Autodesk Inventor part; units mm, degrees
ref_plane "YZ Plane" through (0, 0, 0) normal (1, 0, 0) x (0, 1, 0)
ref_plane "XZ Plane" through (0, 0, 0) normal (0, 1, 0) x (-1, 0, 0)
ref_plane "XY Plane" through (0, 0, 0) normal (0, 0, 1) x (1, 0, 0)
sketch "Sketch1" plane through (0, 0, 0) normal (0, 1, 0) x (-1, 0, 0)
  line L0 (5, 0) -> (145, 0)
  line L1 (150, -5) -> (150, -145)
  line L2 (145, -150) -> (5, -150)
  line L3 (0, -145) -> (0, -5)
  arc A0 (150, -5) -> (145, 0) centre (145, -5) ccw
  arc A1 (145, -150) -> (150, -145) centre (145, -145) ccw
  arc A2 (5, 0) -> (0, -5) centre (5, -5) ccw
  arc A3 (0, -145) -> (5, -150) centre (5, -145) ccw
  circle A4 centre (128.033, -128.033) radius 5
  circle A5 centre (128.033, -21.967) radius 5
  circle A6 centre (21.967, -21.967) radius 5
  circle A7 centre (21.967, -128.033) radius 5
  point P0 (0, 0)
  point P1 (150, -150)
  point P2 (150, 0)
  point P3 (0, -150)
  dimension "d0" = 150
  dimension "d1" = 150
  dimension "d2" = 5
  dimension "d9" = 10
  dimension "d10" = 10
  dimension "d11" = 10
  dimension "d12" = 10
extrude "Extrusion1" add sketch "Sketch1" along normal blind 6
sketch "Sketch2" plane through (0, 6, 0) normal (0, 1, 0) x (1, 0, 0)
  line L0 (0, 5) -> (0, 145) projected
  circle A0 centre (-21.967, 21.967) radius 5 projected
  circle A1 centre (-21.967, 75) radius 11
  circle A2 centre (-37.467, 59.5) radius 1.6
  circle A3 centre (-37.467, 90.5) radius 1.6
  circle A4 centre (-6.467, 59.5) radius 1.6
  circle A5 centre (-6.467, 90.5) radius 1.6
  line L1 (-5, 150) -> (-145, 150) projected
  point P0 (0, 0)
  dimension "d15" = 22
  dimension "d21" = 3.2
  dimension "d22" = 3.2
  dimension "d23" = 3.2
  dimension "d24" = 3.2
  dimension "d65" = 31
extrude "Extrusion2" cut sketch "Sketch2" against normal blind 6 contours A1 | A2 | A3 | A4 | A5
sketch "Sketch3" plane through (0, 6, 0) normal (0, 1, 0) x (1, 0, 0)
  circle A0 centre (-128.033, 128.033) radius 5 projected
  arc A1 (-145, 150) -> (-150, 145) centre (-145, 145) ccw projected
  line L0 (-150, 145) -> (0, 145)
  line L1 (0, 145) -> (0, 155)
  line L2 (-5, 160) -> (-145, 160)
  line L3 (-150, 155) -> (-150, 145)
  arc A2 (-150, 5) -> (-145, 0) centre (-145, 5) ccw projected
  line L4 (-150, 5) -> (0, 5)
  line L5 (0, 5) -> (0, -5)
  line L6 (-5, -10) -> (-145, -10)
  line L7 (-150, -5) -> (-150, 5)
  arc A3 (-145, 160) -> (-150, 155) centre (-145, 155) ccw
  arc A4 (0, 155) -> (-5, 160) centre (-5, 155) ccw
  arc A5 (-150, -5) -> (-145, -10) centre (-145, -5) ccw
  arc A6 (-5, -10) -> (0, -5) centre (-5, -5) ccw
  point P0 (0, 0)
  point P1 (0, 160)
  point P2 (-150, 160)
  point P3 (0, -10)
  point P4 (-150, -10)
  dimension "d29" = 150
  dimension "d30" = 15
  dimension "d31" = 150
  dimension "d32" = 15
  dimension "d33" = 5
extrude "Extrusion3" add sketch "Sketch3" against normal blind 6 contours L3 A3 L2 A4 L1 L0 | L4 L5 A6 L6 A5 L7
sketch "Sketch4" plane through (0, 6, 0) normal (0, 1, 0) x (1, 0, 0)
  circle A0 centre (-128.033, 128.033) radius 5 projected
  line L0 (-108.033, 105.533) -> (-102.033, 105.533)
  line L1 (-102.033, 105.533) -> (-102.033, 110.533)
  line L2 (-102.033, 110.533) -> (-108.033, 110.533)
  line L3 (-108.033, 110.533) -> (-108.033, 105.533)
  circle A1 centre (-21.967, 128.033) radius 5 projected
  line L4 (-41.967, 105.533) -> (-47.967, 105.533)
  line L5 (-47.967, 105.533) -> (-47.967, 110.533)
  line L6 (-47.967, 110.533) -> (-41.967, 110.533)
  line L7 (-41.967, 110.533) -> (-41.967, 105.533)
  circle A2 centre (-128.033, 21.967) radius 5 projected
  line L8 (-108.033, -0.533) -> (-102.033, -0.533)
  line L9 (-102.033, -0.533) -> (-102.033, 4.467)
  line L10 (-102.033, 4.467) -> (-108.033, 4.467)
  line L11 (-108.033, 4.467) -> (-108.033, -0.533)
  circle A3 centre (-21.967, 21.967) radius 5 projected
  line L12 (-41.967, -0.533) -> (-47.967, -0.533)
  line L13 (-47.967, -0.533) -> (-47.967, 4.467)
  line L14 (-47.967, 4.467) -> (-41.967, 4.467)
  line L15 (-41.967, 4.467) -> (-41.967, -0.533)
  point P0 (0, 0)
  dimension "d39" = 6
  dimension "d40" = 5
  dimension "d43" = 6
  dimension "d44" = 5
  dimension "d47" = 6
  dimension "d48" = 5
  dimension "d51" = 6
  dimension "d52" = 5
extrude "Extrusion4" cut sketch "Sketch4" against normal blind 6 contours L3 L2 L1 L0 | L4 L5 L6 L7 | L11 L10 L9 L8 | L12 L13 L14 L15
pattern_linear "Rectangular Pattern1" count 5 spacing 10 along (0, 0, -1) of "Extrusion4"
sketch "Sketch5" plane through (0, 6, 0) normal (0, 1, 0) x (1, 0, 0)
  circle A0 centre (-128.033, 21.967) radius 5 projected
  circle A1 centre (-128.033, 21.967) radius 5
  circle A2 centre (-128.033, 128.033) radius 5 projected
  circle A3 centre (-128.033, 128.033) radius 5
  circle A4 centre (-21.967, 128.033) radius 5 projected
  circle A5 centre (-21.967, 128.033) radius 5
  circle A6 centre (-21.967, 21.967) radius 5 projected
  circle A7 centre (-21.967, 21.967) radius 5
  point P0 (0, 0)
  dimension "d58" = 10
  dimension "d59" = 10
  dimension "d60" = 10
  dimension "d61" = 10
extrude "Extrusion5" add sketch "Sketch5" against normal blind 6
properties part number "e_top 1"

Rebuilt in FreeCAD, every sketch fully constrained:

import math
import FreeCAD as App
import Part
import Sketcher
from FreeCAD import Vector
Q = App.Units.Quantity

doc = App.newDocument("Part")
body = doc.addObject("PartDesign::Body", "Body")

# Sketch on XZ plane
sketch1 = body.newObject("Sketcher::SketchObject", "Sketch")
sketch1.AttachmentSupport = (doc.getObject("XZ_Plane"), [""])
sketch1.MapMode = "FlatFace"
sketch1.addGeometry([
    Part.LineSegment(Vector(-145, 0, 0), Vector(-5, 0, 0)),  # 0
    Part.ArcOfCircle(Part.Circle(Vector(-5, -5, 0), Vector(0, 0, 1), 5), math.radians(0), math.radians(90)),  # 1
    Part.LineSegment(Vector(0, -5, 0), Vector(0, -145, 0)),  # 2
    Part.ArcOfCircle(Part.Circle(Vector(-5, -145, 0), Vector(0, 0, 1), 5), math.radians(-90), math.radians(0)),  # 3
    Part.LineSegment(Vector(-5, -150, 0), Vector(-145, -150, 0)),  # 4
    Part.ArcOfCircle(Part.Circle(Vector(-145, -145, 0), Vector(0, 0, 1), 5), math.radians(180), math.radians(270)),  # 5
    Part.LineSegment(Vector(-150, -145, 0), Vector(-150, -5, 0)),  # 6
    Part.ArcOfCircle(Part.Circle(Vector(-145, -5, 0), Vector(0, 0, 1), 5), math.radians(90), math.radians(180)),  # 7
    Part.Circle(Vector(-22, -128, 0), Vector(0, 0, 1), 5),  # 8
    Part.Circle(Vector(-128, -128, 0), Vector(0, 0, 1), 5),  # 9
    Part.Circle(Vector(-22, -22, 0), Vector(0, 0, 1), 5),  # 10
    Part.Circle(Vector(-128, -22, 0), Vector(0, 0, 1), 5),  # 11
], False)
sketch1.addConstraint([
    Sketcher.Constraint("Tangent", 0, 2, 1, 2),
    Sketcher.Constraint("Tangent", 1, 1, 2, 1),
    Sketcher.Constraint("Tangent", 2, 2, 3, 2),
    Sketcher.Constraint("Tangent", 3, 1, 4, 1),
    Sketcher.Constraint("Tangent", 4, 2, 5, 2),
    Sketcher.Constraint("Tangent", 5, 1, 6, 1),
    Sketcher.Constraint("Tangent", 6, 2, 7, 2),
    Sketcher.Constraint("Tangent", 7, 1, 0, 1),
    Sketcher.Constraint("Horizontal", 0),
    Sketcher.Constraint("Vertical", 2),
    Sketcher.Constraint("Horizontal", 4),
    Sketcher.Constraint("Vertical", 6),
    Sketcher.Constraint("Equal", 1, 3),
    Sketcher.Constraint("Equal", 3, 5),
    Sketcher.Constraint("Equal", 5, 7),
    Sketcher.Constraint("Equal", 7, 8),
    Sketcher.Constraint("Equal", 8, 9),
    Sketcher.Constraint("Equal", 9, 10),
    Sketcher.Constraint("Equal", 10, 11),
    Sketcher.Constraint("PointOnObject", 0, 2, -1),
    Sketcher.Constraint("PointOnObject", 1, 1, -2),
    Sketcher.Constraint("Horizontal", 8, 3, 9, 3),
    Sketcher.Constraint("Horizontal", 10, 3, 11, 3),
    Sketcher.Constraint("Vertical", 8, 3, 10, 3),
    Sketcher.Constraint("Vertical", 9, 3, 11, 3),
    Sketcher.Constraint("Equal", 4, 2),
    Sketcher.Constraint("Diameter", 8, Q("10 mm")),
    Sketcher.Constraint("DistanceY", 3, 1, -1, 1, Q("150 mm")),
    Sketcher.Constraint("DistanceX", 8, 3, -1, 1, Q("21.967 mm")),
    Sketcher.Constraint("DistanceY", 8, 3, -1, 1, Q("128.033 mm")),
    Sketcher.Constraint("DistanceX", 9, 3, -1, 1, Q("128.033 mm")),
    Sketcher.Constraint("DistanceY", 10, 3, -1, 1, Q("21.967 mm")),
])
pad1 = body.newObject("PartDesign::Pad", "Pad")
pad1.Profile = sketch1
pad1.Length = 6
pad1.Reversed = True

# Sketch on XZ plane
sketch2 = body.newObject("Sketcher::SketchObject", "Sketch001")
sketch2.AttachmentSupport = (doc.getObject("XZ_Plane"), [""])
sketch2.MapMode = "FlatFace"
sketch2.AttachmentOffset = App.Placement(Vector(0, 0, -6), App.Rotation())
sketch2.addGeometry([
    Part.Circle(Vector(-22, -75, 0), Vector(0, 0, 1), 11),  # 0
    Part.Circle(Vector(-37.5, -59.5, 0), Vector(0, 0, 1), 1.6),  # 1
    Part.Circle(Vector(-37.5, -90.5, 0), Vector(0, 0, 1), 1.6),  # 2
    Part.Circle(Vector(-6.5, -59.5, 0), Vector(0, 0, 1), 1.6),  # 3
    Part.Circle(Vector(-6.5, -90.5, 0), Vector(0, 0, 1), 1.6),  # 4
], False)
sketch2.addConstraint([
    Sketcher.Constraint("Equal", 1, 2),
    Sketcher.Constraint("Equal", 2, 3),
    Sketcher.Constraint("Equal", 3, 4),
    Sketcher.Constraint("Horizontal", 1, 3, 3, 3),
    Sketcher.Constraint("Horizontal", 2, 3, 4, 3),
    Sketcher.Constraint("Vertical", 1, 3, 2, 3),
    Sketcher.Constraint("Vertical", 3, 3, 4, 3),
    Sketcher.Constraint("Diameter", 0, Q("22 mm")),
    Sketcher.Constraint("Diameter", 1, Q("3.2 mm")),
    Sketcher.Constraint("DistanceY", 2, 3, 1, 3, Q("31 mm")),
    Sketcher.Constraint("DistanceX", 1, 3, 3, 3, Q("31 mm")),
    Sketcher.Constraint("DistanceY", 0, 3, -1, 1, Q("75 mm")),
    Sketcher.Constraint("DistanceY", 1, 3, -1, 1, Q("59.5 mm")),
    Sketcher.Constraint("DistanceX", 1, 3, 0, 3, Q("15.5 mm")),
    Sketcher.Constraint("DistanceX", 0, 3, -1, 1, Q("21.967 mm")),
])
pocket1 = body.newObject("PartDesign::Pocket", "Pocket")
pocket1.Profile = sketch2
pocket1.Length = 6
pocket1.Reversed = True

# Sketch on XZ plane
sketch3 = body.newObject("Sketcher::SketchObject", "Sketch002")
sketch3.AttachmentSupport = (doc.getObject("XZ_Plane"), [""])
sketch3.MapMode = "FlatFace"
sketch3.AttachmentOffset = App.Placement(Vector(0, 0, -6), App.Rotation())
sketch3.addGeometry([
    Part.LineSegment(Vector(-150, -155, 0), Vector(-150, -145, 0)),  # 0
    Part.LineSegment(Vector(-150, -145, 0), Vector(0, -145, 0)),  # 1
    Part.LineSegment(Vector(0, -145, 0), Vector(0, -155, 0)),  # 2
    Part.ArcOfCircle(Part.Circle(Vector(-5, -155, 0), Vector(0, 0, 1), 5), math.radians(-90), math.radians(0)),  # 3
    Part.LineSegment(Vector(-5, -160, 0), Vector(-145, -160, 0)),  # 4
    Part.ArcOfCircle(Part.Circle(Vector(-145, -155, 0), Vector(0, 0, 1), 5), math.radians(180), math.radians(270)),  # 5
    Part.LineSegment(Vector(0, -5, 0), Vector(-150, -5, 0)),  # 6
    Part.LineSegment(Vector(-150, -5, 0), Vector(-150, 5, 0)),  # 7
    Part.ArcOfCircle(Part.Circle(Vector(-145, 5, 0), Vector(0, 0, 1), 5), math.radians(90), math.radians(180)),  # 8
    Part.LineSegment(Vector(-145, 10, 0), Vector(-5, 10, 0)),  # 9
    Part.ArcOfCircle(Part.Circle(Vector(-5, 5, 0), Vector(0, 0, 1), 5), math.radians(0), math.radians(90)),  # 10
    Part.LineSegment(Vector(0, 5, 0), Vector(0, -5, 0)),  # 11
], False)
sketch3.addConstraint([
    Sketcher.Constraint("Coincident", 0, 2, 1, 1),
    Sketcher.Constraint("Coincident", 1, 2, 2, 1),
    Sketcher.Constraint("Tangent", 2, 2, 3, 2),
    Sketcher.Constraint("Tangent", 3, 1, 4, 1),
    Sketcher.Constraint("Tangent", 4, 2, 5, 2),
    Sketcher.Constraint("Tangent", 5, 1, 0, 1),
    Sketcher.Constraint("Coincident", 6, 2, 7, 1),
    Sketcher.Constraint("Tangent", 7, 2, 8, 2),
    Sketcher.Constraint("Tangent", 8, 1, 9, 1),
    Sketcher.Constraint("Tangent", 9, 2, 10, 2),
    Sketcher.Constraint("Tangent", 10, 1, 11, 1),
    Sketcher.Constraint("Coincident", 11, 2, 6, 1),
    Sketcher.Constraint("Vertical", 0),
    Sketcher.Constraint("Horizontal", 1),
    Sketcher.Constraint("Vertical", 2),
    Sketcher.Constraint("Horizontal", 4),
    Sketcher.Constraint("Horizontal", 6),
    Sketcher.Constraint("Vertical", 7),
    Sketcher.Constraint("Horizontal", 9),
    Sketcher.Constraint("Vertical", 11),
    Sketcher.Constraint("Equal", 3, 5),
    Sketcher.Constraint("Equal", 5, 8),
    Sketcher.Constraint("Equal", 8, 10),
    Sketcher.Constraint("Symmetric", 10, 1, 11, 2, -1, 1),
    Sketcher.Constraint("PointOnObject", 1, 2, -2),
    Sketcher.Constraint("Vertical", 5, 3, 8, 3),
    Sketcher.Constraint("Equal", 2, 7),
    Sketcher.Constraint("Radius", 3, Q("5 mm")),
    Sketcher.Constraint("DistanceX", 1, 1, 1, 2, Q("150 mm")),
    Sketcher.Constraint("DistanceY", -1, 1, 8, 3, Q("5 mm")),
    Sketcher.Constraint("DistanceY", 0, 2, 8, 3, Q("150 mm")),
])
pad2 = body.newObject("PartDesign::Pad", "Pad001")
pad2.Profile = sketch3
pad2.Length = 6

# Sketch on XZ plane
sketch4 = body.newObject("Sketcher::SketchObject", "Sketch003")
sketch4.AttachmentSupport = (doc.getObject("XZ_Plane"), [""])
sketch4.MapMode = "FlatFace"
sketch4.AttachmentOffset = App.Placement(Vector(0, 0, -6), App.Rotation())
sketch4.addGeometry([
    Part.LineSegment(Vector(-108, -111, 0), Vector(-108, -106, 0)),  # 0
    Part.LineSegment(Vector(-108, -106, 0), Vector(-102, -106, 0)),  # 1
    Part.LineSegment(Vector(-102, -106, 0), Vector(-102, -111, 0)),  # 2
    Part.LineSegment(Vector(-102, -111, 0), Vector(-108, -111, 0)),  # 3
    Part.LineSegment(Vector(-48, -106, 0), Vector(-42, -106, 0)),  # 4
    Part.LineSegment(Vector(-42, -106, 0), Vector(-42, -111, 0)),  # 5
    Part.LineSegment(Vector(-42, -111, 0), Vector(-48, -111, 0)),  # 6
    Part.LineSegment(Vector(-48, -111, 0), Vector(-48, -106, 0)),  # 7
    Part.LineSegment(Vector(-108, -4, 0), Vector(-108, 1, 0)),  # 8
    Part.LineSegment(Vector(-108, 1, 0), Vector(-102, 1, 0)),  # 9
    Part.LineSegment(Vector(-102, 1, 0), Vector(-102, -4, 0)),  # 10
    Part.LineSegment(Vector(-102, -4, 0), Vector(-108, -4, 0)),  # 11
    Part.LineSegment(Vector(-48, 1, 0), Vector(-42, 1, 0)),  # 12
    Part.LineSegment(Vector(-42, 1, 0), Vector(-42, -4, 0)),  # 13
    Part.LineSegment(Vector(-42, -4, 0), Vector(-48, -4, 0)),  # 14
    Part.LineSegment(Vector(-48, -4, 0), Vector(-48, 1, 0)),  # 15
], False)
sketch4.addConstraint([
    Sketcher.Constraint("Coincident", 0, 2, 1, 1),
    Sketcher.Constraint("Coincident", 1, 2, 2, 1),
    Sketcher.Constraint("Coincident", 2, 2, 3, 1),
    Sketcher.Constraint("Coincident", 3, 2, 0, 1),
    Sketcher.Constraint("Coincident", 4, 2, 5, 1),
    Sketcher.Constraint("Coincident", 5, 2, 6, 1),
    Sketcher.Constraint("Coincident", 6, 2, 7, 1),
    Sketcher.Constraint("Coincident", 7, 2, 4, 1),
    Sketcher.Constraint("Coincident", 8, 2, 9, 1),
    Sketcher.Constraint("Coincident", 9, 2, 10, 1),
    Sketcher.Constraint("Coincident", 10, 2, 11, 1),
    Sketcher.Constraint("Coincident", 11, 2, 8, 1),
    Sketcher.Constraint("Coincident", 12, 2, 13, 1),
    Sketcher.Constraint("Coincident", 13, 2, 14, 1),
    Sketcher.Constraint("Coincident", 14, 2, 15, 1),
    Sketcher.Constraint("Coincident", 15, 2, 12, 1),
    Sketcher.Constraint("Vertical", 0),
    Sketcher.Constraint("Horizontal", 1),
    Sketcher.Constraint("Vertical", 2),
    Sketcher.Constraint("Horizontal", 3),
    Sketcher.Constraint("Horizontal", 4),
    Sketcher.Constraint("Vertical", 5),
    Sketcher.Constraint("Horizontal", 6),
    Sketcher.Constraint("Vertical", 7),
    Sketcher.Constraint("Vertical", 8),
    Sketcher.Constraint("Horizontal", 9),
    Sketcher.Constraint("Vertical", 10),
    Sketcher.Constraint("Horizontal", 11),
    Sketcher.Constraint("Horizontal", 12),
    Sketcher.Constraint("Vertical", 13),
    Sketcher.Constraint("Horizontal", 14),
    Sketcher.Constraint("Vertical", 15),
    Sketcher.Constraint("Horizontal", 1, 2, 4, 2),
    Sketcher.Constraint("Horizontal", 3, 2, 5, 2),
    Sketcher.Constraint("Horizontal", 9, 2, 12, 2),
    Sketcher.Constraint("Horizontal", 11, 2, 13, 2),
    Sketcher.Constraint("Vertical", 3, 2, 8, 2),
    Sketcher.Constraint("Vertical", 2, 2, 9, 2),
    Sketcher.Constraint("Vertical", 5, 2, 12, 2),
    Sketcher.Constraint("Vertical", 7, 2, 14, 2),
    Sketcher.Constraint("Equal", 3, 4),
    Sketcher.Constraint("Equal", 7, 8),
    Sketcher.Constraint("DistanceX", 1, 1, 1, 2, Q("6 mm")),
    Sketcher.Constraint("DistanceY", 0, 1, 0, 2, Q("5 mm")),
    Sketcher.Constraint("DistanceX", 0, 2, -1, 1, Q("108.033 mm")),
    Sketcher.Constraint("DistanceY", 0, 2, -1, 1, Q("105.533 mm")),
    Sketcher.Constraint("DistanceX", 4, 2, -1, 1, Q("41.967 mm")),
    Sketcher.Constraint("DistanceY", -1, 1, 8, 2, Q("0.533 mm")),
])
pocket2 = body.newObject("PartDesign::Pocket", "Pocket001")
pocket2.Profile = sketch4
pocket2.Length = 6
pocket2.Reversed = True
doc.recompute()

linearpattern = body.newObject("PartDesign::LinearPattern", "LinearPattern")
linearpattern.Originals = [pocket2]
linearpattern.Direction = (doc.getObject("Z_Axis"), [""])
linearpattern.Mode = "offset"
linearpattern.Offset = 10
linearpattern.Occurrences = 5
linearpattern.Reversed = True
body.Tip = linearpattern

# Sketch on XZ plane
sketch5 = body.newObject("Sketcher::SketchObject", "Sketch004")
sketch5.AttachmentSupport = (doc.getObject("XZ_Plane"), [""])
sketch5.MapMode = "FlatFace"
sketch5.AttachmentOffset = App.Placement(Vector(0, 0, -6), App.Rotation())
sketch5.addGeometry([
    Part.Circle(Vector(-128, -22, 0), Vector(0, 0, 1), 5),
    Part.Circle(Vector(-128, -128, 0), Vector(0, 0, 1), 5),
    Part.Circle(Vector(-22, -128, 0), Vector(0, 0, 1), 5),
    Part.Circle(Vector(-22, -22, 0), Vector(0, 0, 1), 5),
], False)
sketch5.addConstraint([
    Sketcher.Constraint("Equal", 0, 1),
    Sketcher.Constraint("Equal", 1, 2),
    Sketcher.Constraint("Equal", 2, 3),
    Sketcher.Constraint("Horizontal", 1, 3, 2, 3),
    Sketcher.Constraint("Horizontal", 0, 3, 3, 3),
    Sketcher.Constraint("Vertical", 0, 3, 1, 3),
    Sketcher.Constraint("Vertical", 2, 3, 3, 3),
    Sketcher.Constraint("Diameter", 0, Q("10 mm")),
    Sketcher.Constraint("DistanceX", 0, 3, -1, 1, Q("128.033 mm")),
    Sketcher.Constraint("DistanceY", 0, 3, -1, 1, Q("21.967 mm")),
    Sketcher.Constraint("DistanceY", 1, 3, -1, 1, Q("128.033 mm")),
    Sketcher.Constraint("DistanceX", 2, 3, -1, 1, Q("21.967 mm")),
])
pad3 = body.newObject("PartDesign::Pad", "Pad002")
pad3.Profile = sketch5
pad3.Length = 6

doc.recompute()
